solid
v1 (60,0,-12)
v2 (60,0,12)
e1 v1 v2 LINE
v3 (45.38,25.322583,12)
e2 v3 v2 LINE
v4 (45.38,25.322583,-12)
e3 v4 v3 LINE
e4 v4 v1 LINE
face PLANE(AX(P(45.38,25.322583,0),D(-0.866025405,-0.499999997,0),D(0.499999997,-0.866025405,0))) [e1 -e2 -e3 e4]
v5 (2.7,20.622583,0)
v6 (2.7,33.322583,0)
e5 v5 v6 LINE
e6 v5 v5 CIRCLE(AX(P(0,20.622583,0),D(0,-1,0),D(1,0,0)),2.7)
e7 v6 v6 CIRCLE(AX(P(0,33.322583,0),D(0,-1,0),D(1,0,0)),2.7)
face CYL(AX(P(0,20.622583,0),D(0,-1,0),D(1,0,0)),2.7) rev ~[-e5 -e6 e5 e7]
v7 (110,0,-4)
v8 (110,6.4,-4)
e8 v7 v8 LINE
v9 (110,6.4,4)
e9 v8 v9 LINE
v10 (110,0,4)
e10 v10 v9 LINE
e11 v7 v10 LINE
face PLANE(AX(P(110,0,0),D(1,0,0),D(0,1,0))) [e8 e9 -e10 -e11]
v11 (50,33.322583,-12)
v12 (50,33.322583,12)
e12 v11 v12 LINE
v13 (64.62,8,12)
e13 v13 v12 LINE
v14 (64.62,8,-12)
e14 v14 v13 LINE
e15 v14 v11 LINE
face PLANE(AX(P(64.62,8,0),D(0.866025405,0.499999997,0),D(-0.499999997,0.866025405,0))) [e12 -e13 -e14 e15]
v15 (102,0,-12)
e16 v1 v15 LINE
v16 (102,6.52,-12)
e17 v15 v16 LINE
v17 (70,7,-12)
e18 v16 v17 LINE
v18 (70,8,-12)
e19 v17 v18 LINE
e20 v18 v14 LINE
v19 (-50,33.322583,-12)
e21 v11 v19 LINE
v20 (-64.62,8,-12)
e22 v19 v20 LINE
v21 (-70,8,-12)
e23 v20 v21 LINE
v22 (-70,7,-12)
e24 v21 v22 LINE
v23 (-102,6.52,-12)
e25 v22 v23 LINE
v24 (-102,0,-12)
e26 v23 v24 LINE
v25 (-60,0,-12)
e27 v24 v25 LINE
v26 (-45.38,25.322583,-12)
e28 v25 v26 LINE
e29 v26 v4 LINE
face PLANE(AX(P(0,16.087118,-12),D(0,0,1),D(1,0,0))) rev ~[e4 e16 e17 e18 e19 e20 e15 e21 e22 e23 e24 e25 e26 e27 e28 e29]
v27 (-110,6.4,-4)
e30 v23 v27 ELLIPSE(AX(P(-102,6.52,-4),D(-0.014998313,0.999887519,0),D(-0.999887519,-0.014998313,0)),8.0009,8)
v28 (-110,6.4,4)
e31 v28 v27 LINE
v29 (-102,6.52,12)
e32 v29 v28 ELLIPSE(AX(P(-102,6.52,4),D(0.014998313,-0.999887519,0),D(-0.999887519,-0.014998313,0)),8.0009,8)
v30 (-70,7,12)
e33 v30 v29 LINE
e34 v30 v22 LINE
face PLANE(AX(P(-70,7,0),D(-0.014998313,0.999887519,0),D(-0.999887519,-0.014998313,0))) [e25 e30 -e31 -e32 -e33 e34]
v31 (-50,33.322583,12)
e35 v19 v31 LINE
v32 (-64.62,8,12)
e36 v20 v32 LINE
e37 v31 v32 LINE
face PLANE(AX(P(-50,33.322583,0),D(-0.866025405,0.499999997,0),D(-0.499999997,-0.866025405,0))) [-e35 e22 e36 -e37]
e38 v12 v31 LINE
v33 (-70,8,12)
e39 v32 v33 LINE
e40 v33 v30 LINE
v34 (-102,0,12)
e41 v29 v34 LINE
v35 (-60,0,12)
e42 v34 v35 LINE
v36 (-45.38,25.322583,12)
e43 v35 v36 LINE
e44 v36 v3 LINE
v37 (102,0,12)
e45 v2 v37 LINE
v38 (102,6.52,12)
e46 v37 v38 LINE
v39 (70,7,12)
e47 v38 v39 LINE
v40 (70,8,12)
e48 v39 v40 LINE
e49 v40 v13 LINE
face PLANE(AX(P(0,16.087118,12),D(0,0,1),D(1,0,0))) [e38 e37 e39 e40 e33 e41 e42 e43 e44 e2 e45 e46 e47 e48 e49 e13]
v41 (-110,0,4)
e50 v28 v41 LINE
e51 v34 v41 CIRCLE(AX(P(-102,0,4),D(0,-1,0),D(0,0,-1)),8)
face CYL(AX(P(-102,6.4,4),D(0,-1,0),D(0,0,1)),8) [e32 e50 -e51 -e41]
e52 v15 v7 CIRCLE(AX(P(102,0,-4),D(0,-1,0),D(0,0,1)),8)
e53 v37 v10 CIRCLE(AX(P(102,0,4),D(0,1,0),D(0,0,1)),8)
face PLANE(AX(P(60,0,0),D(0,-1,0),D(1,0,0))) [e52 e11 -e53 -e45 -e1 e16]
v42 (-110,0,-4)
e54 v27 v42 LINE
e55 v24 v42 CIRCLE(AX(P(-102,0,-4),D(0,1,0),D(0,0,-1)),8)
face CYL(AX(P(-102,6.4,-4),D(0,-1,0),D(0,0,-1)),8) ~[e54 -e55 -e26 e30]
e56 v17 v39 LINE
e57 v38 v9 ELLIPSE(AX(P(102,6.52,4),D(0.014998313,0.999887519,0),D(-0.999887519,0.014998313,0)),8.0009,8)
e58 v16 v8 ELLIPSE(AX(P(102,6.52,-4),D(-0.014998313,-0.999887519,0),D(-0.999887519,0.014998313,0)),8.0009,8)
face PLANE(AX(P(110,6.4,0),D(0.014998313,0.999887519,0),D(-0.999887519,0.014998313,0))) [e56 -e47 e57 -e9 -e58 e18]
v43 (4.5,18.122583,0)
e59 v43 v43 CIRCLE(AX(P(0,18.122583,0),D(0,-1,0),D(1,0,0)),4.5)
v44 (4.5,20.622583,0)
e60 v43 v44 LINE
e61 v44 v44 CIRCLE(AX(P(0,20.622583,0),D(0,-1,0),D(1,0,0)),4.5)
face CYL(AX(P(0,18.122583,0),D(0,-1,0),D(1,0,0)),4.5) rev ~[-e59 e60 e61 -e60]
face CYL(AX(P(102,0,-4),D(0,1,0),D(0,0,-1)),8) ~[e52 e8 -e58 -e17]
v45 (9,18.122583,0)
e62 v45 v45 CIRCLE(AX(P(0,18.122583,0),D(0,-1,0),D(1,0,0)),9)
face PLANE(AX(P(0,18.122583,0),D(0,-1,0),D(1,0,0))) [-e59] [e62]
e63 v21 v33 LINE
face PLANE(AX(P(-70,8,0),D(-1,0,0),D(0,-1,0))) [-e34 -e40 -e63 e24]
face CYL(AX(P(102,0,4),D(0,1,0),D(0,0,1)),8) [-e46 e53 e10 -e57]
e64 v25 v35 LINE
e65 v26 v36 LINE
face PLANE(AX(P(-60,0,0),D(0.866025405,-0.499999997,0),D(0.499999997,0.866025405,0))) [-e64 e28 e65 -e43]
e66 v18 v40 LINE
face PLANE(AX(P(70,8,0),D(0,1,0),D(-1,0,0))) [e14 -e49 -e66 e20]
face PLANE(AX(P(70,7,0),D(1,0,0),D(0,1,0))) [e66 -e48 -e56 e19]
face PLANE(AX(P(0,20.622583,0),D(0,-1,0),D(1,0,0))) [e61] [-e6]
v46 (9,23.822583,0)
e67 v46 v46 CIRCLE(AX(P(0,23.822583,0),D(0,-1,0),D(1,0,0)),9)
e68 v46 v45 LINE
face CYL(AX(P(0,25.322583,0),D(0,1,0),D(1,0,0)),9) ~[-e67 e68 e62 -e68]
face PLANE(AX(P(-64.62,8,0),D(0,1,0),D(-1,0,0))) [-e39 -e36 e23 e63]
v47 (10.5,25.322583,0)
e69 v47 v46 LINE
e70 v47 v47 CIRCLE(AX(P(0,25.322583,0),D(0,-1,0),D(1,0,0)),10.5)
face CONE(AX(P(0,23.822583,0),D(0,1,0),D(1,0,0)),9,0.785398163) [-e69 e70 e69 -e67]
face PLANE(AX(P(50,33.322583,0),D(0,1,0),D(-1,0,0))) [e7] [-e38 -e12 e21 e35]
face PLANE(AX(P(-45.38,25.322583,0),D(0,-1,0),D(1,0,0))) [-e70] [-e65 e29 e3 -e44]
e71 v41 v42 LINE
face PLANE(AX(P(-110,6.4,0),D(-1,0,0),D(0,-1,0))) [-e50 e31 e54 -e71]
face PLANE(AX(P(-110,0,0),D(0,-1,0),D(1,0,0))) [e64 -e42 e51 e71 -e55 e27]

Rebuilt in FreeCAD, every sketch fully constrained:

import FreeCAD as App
import Part
import Sketcher
from FreeCAD import Vector
Q = App.Units.Quantity


def edges_at(feature, points):
    """Names of the edges that pass closest to the given points."""
    edges = feature.Shape.Edges
    near = lambda p: min(range(len(edges)), key=lambda i: edges[i].distToShape(Part.Vertex(*p))[0])
    return sorted({f"Edge{near(p) + 1}" for p in points})


def add_polygon(sketch, points):
    """Adds a closed chain of lines whose ends are joined by coincident constraints."""
    first, n = sketch.GeometryCount, len(points)
    for a, b in zip(points, points[1:] + points[:1]):
        sketch.addGeometry(Part.LineSegment(App.Vector(*a, 0), App.Vector(*b, 0)), False)
    for i in range(n):
        sketch.addConstraint(Sketcher.Constraint("Coincident", first + i, 2, first + (i + 1) % n, 1))

doc = App.newDocument("Part")
params = doc.addObject("Spreadsheet::Sheet", "Params")
for row, (alias, value) in enumerate([
    ("sketch1_width", "50 mm"),
    ("sketch1_width2", "100 mm"),
    ("sketch1_height", "1 mm"),
    ("sketch1_height2", "6.4 mm"),
    ("sketch1_width3", "90.76 mm"),
    ("pad1_length", "24 mm"),
    ("sketch2_diameter", "18 mm"),
    ("pad2_length", "7.2 mm"),
    ("sketch3_diameter", "9 mm"),
    ("pocket1_length", "2.5 mm"),
    ("sketch4_diameter", "5.4 mm"),
    ("chamfer_size", "1.5 mm"),
    ("fillet_radius", "8 mm"),
], start=1):
    params.set(f"A{row}", alias)
    params.set(f"B{row}", "=" + value)
    params.setAlias(f"B{row}", alias)

body = doc.addObject("PartDesign::Body", "Body")

# Sketch on XY plane
sketch1 = doc.addObject("Sketcher::SketchObject", "Sketch")
body.addObject(sketch1)
sketch1.AttachmentSupport = (doc.XY_Plane, [""])
sketch1.MapMode = "FlatFace"
add_polygon(sketch1, [(-110, 0), (-60, 0), (-45.4, 25.3), (45.4, 25.3), (60, 0), (110, 0), (110, 6.4), (70, 7), (70, 8), (64.6, 8), (50, 33.3), (-50, 33.3), (-64.6, 8), (-70, 8), (-70, 7), (-110, 6.4)])  # lines 0-15
sketch1.addConstraint(Sketcher.Constraint("Horizontal", 0))
sketch1.addConstraint(Sketcher.Constraint("Horizontal", 2))
sketch1.addConstraint(Sketcher.Constraint("Horizontal", 4))
sketch1.addConstraint(Sketcher.Constraint("Vertical", 5))
sketch1.addConstraint(Sketcher.Constraint("Vertical", 7))
sketch1.addConstraint(Sketcher.Constraint("Horizontal", 8))
sketch1.addConstraint(Sketcher.Constraint("Horizontal", 10))
sketch1.addConstraint(Sketcher.Constraint("Horizontal", 12))
sketch1.addConstraint(Sketcher.Constraint("Vertical", 13))
sketch1.addConstraint(Sketcher.Constraint("Vertical", 15))
sketch1.addConstraint(Sketcher.Constraint("Symmetric", 0, 2, 3, 2, -1, 1))
sketch1.addConstraint(Sketcher.Constraint("Symmetric", 8, 2, 11, 2, -2))
sketch1.addConstraint(Sketcher.Constraint("Symmetric", 6, 2, 13, 2, -2))
sketch1.addConstraint(Sketcher.Constraint("Symmetric", 5, 2, 14, 2, -2))
sketch1.addConstraint(Sketcher.Constraint("PointOnObject", 0, 2, -1))
sketch1.addConstraint(Sketcher.Constraint("Parallel", 3, 9))
sketch1.addConstraint(Sketcher.Constraint("Parallel", 1, 11))
sketch1.addConstraint(Sketcher.Constraint("Equal", 1, 3))
sketch1.addConstraint(Sketcher.Constraint("Equal", 3, 9))
sketch1.addConstraint(Sketcher.Constraint("DistanceX", 0, 1, 0, 2, 50.0))
sketch1.addConstraint(Sketcher.Constraint("DistanceX", 10, 2, 10, 1, 100.0))
sketch1.addConstraint(Sketcher.Constraint("DistanceY", 7, 1, 7, 2, 1.0))
sketch1.addConstraint(Sketcher.Constraint("Angle", 1, Q("60 deg")))
sketch1.addConstraint(Sketcher.Constraint("DistanceY", 5, 1, 5, 2, 6.4))
sketch1.addConstraint(Sketcher.Constraint("DistanceX", 0, 2, -1, 1, 60.0))
sketch1.addConstraint(Sketcher.Constraint("DistanceX", -1, 1, 6, 2, 70.0))
sketch1.addConstraint(Sketcher.Constraint("DistanceY", -1, 1, 6, 2, 7.0))
sketch1.addConstraint(Sketcher.Constraint("DistanceX", 2, 1, 2, 2, 90.76))
sketch1.setExpression("Constraints[35]", "Params.sketch1_width")
sketch1.setExpression("Constraints[36]", "Params.sketch1_width2")
sketch1.setExpression("Constraints[37]", "Params.sketch1_height")
sketch1.setExpression("Constraints[39]", "Params.sketch1_height2")
sketch1.setExpression("Constraints[43]", "Params.sketch1_width3")
pad1 = doc.addObject("PartDesign::Pad", "Pad")
body.addObject(pad1)
pad1.Profile = sketch1
pad1.setExpression("Length", "Params.pad1_length")
pad1.Midplane = True

# Sketch on XZ plane
sketch2 = doc.addObject("Sketcher::SketchObject", "Sketch001")
body.addObject(sketch2)
sketch2.AttachmentSupport = (doc.XZ_Plane, [""])
sketch2.MapMode = "FlatFace"
sketch2.AttachmentOffset = App.Placement(Vector(0, 0, -25.322583), App.Rotation())
sketch2.addGeometry(Part.Circle(Vector(0, 0, 0), Vector(0, 0, 1), 9), False)
sketch2.addConstraint(Sketcher.Constraint("Coincident", 0, 3, -1, 1))
sketch2.addConstraint(Sketcher.Constraint("Diameter", 0, 18.0))
sketch2.setExpression("Constraints[1]", "Params.sketch2_diameter")
pad2 = doc.addObject("PartDesign::Pad", "Pad001")
body.addObject(pad2)
pad2.Profile = sketch2
pad2.setExpression("Length", "Params.pad2_length")

# Sketch on XZ plane
sketch3 = doc.addObject("Sketcher::SketchObject", "Sketch002")
body.addObject(sketch3)
sketch3.AttachmentSupport = (doc.XZ_Plane, [""])
sketch3.MapMode = "FlatFace"
sketch3.AttachmentOffset = App.Placement(Vector(0, 0, -18.122583), App.Rotation())
sketch3.addGeometry(Part.Circle(Vector(0, 0, 0), Vector(0, 0, 1), 4.5), False)
sketch3.addConstraint(Sketcher.Constraint("Coincident", 0, 3, -1, 1))
sketch3.addConstraint(Sketcher.Constraint("Diameter", 0, 9.0))
sketch3.setExpression("Constraints[1]", "Params.sketch3_diameter")
pocket1 = doc.addObject("PartDesign::Pocket", "Pocket")
body.addObject(pocket1)
pocket1.Profile = sketch3
pocket1.setExpression("Length", "Params.pocket1_length")

# Sketch on XZ plane
sketch4 = doc.addObject("Sketcher::SketchObject", "Sketch003")
body.addObject(sketch4)
sketch4.AttachmentSupport = (doc.XZ_Plane, [""])
sketch4.MapMode = "FlatFace"
sketch4.AttachmentOffset = App.Placement(Vector(0, 0, -20.622583), App.Rotation())
sketch4.addGeometry(Part.Circle(Vector(0, 0, 0), Vector(0, 0, 1), 2.7), False)
sketch4.addConstraint(Sketcher.Constraint("Coincident", 0, 3, -1, 1))
sketch4.addConstraint(Sketcher.Constraint("Diameter", 0, 5.4))
sketch4.setExpression("Constraints[1]", "Params.sketch4_diameter")
pocket2 = doc.addObject("PartDesign::Pocket", "Pocket001")
body.addObject(pocket2)
pocket2.Profile = sketch4
pocket2.Type = "ThroughAll"
doc.recompute()

chamfer = doc.addObject("PartDesign::Chamfer", "Chamfer")
body.addObject(chamfer)
chamfer.Base = (pocket2, edges_at(pocket2, [(-9, 25.323, 0)]))
chamfer.setExpression("Size", "Params.chamfer_size")
doc.recompute()

fillet = doc.addObject("PartDesign::Fillet", "Fillet")
body.addObject(fillet)
fillet.Base = (chamfer, edges_at(chamfer, [
    (-110, 3.2, -12),
    (-110, 3.2, 12),
    (110, 3.2, -12),
    (110, 3.2, 12),
]))
fillet.setExpression("Radius", "Params.fillet_radius")

doc.recompute()
